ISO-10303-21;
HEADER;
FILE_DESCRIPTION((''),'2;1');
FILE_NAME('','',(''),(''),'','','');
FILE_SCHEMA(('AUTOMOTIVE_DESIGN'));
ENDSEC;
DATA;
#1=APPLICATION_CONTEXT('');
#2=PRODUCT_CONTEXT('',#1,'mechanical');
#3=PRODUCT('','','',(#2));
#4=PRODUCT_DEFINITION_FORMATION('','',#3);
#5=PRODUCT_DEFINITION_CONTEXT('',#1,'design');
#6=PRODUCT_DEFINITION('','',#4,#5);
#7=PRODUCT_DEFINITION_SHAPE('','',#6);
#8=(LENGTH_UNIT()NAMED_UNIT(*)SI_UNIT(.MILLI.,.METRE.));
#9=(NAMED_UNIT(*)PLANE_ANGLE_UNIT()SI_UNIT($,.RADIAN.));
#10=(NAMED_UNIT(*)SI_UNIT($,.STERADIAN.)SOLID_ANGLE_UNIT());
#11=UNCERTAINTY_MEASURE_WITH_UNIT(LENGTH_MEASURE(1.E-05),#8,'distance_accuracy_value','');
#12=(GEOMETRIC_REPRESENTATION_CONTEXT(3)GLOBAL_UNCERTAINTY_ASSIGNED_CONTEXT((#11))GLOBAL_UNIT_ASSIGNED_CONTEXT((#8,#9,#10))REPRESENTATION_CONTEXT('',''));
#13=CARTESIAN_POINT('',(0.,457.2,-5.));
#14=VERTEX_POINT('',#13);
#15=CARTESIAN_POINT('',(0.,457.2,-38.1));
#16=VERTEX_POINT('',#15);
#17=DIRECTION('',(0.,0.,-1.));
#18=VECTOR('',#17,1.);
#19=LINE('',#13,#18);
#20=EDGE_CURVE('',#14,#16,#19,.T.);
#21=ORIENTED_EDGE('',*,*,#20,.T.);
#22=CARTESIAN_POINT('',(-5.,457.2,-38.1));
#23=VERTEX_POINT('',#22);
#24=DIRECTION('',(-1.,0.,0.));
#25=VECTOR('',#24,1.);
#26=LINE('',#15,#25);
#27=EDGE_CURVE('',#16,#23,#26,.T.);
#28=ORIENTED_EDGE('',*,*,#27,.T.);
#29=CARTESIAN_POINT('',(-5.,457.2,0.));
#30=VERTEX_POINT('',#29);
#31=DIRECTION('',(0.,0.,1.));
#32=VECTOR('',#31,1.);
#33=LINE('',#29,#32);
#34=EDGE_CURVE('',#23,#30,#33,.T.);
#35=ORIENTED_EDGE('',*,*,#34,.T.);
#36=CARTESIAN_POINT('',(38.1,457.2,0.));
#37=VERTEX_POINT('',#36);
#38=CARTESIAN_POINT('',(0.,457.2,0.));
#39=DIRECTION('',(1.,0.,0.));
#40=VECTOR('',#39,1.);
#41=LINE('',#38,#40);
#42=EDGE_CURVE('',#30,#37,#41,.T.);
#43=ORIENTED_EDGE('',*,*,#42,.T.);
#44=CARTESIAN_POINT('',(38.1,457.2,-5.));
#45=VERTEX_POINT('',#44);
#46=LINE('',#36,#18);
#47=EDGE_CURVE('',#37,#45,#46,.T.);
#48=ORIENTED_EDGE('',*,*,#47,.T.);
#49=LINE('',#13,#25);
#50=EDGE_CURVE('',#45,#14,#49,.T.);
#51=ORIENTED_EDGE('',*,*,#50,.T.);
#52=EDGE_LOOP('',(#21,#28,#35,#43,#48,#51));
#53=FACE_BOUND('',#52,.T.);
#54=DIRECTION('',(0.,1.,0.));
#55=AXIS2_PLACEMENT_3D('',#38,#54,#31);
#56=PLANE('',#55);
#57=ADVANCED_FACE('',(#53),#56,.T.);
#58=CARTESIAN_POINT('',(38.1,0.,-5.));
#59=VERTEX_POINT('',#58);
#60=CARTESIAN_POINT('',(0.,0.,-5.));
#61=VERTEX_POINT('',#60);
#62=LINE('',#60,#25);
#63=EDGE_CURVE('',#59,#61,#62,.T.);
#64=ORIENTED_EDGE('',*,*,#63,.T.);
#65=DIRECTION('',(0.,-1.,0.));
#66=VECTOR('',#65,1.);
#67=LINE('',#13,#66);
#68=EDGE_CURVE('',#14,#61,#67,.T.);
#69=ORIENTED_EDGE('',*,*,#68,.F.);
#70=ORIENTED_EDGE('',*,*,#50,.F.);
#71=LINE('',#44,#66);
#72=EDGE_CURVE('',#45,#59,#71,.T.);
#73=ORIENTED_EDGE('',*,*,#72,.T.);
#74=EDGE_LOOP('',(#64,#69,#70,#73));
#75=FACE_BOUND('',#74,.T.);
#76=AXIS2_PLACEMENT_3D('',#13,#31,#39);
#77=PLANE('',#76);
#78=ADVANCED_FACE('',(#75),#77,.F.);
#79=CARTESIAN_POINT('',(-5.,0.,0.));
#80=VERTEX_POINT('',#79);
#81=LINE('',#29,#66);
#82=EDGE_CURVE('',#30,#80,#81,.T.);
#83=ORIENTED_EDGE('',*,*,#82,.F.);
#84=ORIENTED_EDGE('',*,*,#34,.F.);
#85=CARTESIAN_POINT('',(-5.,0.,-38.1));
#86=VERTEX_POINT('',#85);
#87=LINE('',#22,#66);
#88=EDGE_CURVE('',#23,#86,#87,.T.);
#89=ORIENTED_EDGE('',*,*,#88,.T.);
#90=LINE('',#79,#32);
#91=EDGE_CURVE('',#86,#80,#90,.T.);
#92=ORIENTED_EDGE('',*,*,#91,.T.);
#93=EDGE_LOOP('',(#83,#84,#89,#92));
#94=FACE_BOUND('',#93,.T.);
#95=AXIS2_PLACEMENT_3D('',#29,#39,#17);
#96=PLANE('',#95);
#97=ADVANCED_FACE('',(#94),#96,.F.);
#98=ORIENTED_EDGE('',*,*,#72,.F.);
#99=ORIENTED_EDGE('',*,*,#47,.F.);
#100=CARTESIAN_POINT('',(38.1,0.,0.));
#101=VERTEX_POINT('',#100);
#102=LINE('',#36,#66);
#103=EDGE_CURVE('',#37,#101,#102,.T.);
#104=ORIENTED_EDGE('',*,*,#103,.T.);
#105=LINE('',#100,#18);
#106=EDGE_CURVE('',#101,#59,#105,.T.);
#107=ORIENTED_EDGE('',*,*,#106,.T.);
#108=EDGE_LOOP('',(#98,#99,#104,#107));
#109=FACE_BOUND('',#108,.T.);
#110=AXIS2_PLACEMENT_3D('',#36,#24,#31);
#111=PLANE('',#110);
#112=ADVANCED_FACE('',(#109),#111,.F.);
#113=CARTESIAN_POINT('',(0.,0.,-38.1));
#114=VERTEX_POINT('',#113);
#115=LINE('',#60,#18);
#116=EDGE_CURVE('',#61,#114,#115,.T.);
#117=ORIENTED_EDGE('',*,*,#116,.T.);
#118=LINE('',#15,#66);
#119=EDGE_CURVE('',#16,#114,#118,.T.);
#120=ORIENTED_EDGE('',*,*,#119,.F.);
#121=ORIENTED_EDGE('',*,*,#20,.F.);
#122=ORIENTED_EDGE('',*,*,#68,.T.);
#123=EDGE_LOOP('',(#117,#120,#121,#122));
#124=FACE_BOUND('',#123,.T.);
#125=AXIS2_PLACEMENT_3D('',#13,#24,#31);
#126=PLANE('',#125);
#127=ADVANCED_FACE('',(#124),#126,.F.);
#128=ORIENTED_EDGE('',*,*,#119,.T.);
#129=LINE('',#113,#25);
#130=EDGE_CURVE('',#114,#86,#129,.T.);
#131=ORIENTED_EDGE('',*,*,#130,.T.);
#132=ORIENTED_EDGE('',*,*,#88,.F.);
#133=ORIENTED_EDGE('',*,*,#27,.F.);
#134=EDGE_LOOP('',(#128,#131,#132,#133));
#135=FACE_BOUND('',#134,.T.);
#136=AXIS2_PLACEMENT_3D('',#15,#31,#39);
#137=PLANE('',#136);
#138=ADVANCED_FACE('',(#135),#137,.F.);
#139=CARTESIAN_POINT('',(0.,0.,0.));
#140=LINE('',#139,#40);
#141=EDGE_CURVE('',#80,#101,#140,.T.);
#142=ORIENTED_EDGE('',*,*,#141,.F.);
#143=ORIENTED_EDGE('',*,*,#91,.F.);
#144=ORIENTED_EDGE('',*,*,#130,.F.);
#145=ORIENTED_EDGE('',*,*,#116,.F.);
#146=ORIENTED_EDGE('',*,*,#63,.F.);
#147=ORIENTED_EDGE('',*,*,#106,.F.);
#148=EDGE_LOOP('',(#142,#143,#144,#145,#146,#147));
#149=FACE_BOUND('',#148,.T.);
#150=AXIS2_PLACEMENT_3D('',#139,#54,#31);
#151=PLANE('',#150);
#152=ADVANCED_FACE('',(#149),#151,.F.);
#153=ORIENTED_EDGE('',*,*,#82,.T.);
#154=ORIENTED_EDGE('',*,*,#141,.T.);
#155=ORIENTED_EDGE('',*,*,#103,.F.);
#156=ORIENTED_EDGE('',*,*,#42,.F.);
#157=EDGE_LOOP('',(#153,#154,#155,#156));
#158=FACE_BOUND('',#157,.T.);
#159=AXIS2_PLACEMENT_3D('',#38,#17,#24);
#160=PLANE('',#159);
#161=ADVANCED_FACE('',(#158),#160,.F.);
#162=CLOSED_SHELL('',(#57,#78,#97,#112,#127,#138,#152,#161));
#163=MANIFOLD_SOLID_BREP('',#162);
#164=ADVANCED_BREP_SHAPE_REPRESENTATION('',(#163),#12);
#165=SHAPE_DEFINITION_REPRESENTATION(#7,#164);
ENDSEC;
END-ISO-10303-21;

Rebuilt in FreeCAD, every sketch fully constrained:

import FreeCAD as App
import Part
import Sketcher
from FreeCAD import Vector
Q = App.Units.Quantity

doc = App.newDocument("Part")
body = doc.addObject("PartDesign::Body", "Body")

# Sketch on XZ plane
sketch1 = doc.addObject("Sketcher::SketchObject", "Sketch")
body.addObject(sketch1)
sketch1.AttachmentSupport = (doc.XZ_Plane, [""])
sketch1.MapMode = "FlatFace"
sketch1.addGeometry([
    Part.LineSegment(Vector(-5, 0, 0), Vector(38.1, 0, 0)),  # 0
    Part.LineSegment(Vector(38.1, 0, 0), Vector(38.1, -5, 0)),  # 1
    Part.LineSegment(Vector(38.1, -5, 0), Vector(0, -5, 0)),  # 2
    Part.LineSegment(Vector(0, -5, 0), Vector(0, -38.1, 0)),  # 3
    Part.LineSegment(Vector(0, -38.1, 0), Vector(-5, -38.1, 0)),  # 4
    Part.LineSegment(Vector(-5, -38.1, 0), Vector(-5, 0, 0)),  # 5
], False)
sketch1.addConstraint([
    Sketcher.Constraint("Coincident", 0, 2, 1, 1),
    Sketcher.Constraint("Coincident", 1, 2, 2, 1),
    Sketcher.Constraint("Coincident", 2, 2, 3, 1),
    Sketcher.Constraint("Coincident", 3, 2, 4, 1),
    Sketcher.Constraint("Coincident", 4, 2, 5, 1),
    Sketcher.Constraint("Coincident", 5, 2, 0, 1),
    Sketcher.Constraint("Horizontal", 0),
    Sketcher.Constraint("Vertical", 1),
    Sketcher.Constraint("Horizontal", 2),
    Sketcher.Constraint("Vertical", 3),
    Sketcher.Constraint("Horizontal", 4),
    Sketcher.Constraint("Vertical", 5),
    Sketcher.Constraint("PointOnObject", 0, 2, -1),
    Sketcher.Constraint("PointOnObject", 2, 2, -2),
    Sketcher.Constraint("Equal", 4, 1),
    Sketcher.Constraint("Equal", 2, 5),
    Sketcher.Constraint("DistanceX", 4, 2, 4, 1, Q("5 mm")),
    Sketcher.Constraint("DistanceX", 0, 1, 0, 2, Q("43.1 mm")),
])
pad1 = doc.addObject("PartDesign::Pad", "Pad")
body.addObject(pad1)
pad1.Profile = sketch1
pad1.Length = 457.2
pad1.Reversed = True

doc.recompute()
